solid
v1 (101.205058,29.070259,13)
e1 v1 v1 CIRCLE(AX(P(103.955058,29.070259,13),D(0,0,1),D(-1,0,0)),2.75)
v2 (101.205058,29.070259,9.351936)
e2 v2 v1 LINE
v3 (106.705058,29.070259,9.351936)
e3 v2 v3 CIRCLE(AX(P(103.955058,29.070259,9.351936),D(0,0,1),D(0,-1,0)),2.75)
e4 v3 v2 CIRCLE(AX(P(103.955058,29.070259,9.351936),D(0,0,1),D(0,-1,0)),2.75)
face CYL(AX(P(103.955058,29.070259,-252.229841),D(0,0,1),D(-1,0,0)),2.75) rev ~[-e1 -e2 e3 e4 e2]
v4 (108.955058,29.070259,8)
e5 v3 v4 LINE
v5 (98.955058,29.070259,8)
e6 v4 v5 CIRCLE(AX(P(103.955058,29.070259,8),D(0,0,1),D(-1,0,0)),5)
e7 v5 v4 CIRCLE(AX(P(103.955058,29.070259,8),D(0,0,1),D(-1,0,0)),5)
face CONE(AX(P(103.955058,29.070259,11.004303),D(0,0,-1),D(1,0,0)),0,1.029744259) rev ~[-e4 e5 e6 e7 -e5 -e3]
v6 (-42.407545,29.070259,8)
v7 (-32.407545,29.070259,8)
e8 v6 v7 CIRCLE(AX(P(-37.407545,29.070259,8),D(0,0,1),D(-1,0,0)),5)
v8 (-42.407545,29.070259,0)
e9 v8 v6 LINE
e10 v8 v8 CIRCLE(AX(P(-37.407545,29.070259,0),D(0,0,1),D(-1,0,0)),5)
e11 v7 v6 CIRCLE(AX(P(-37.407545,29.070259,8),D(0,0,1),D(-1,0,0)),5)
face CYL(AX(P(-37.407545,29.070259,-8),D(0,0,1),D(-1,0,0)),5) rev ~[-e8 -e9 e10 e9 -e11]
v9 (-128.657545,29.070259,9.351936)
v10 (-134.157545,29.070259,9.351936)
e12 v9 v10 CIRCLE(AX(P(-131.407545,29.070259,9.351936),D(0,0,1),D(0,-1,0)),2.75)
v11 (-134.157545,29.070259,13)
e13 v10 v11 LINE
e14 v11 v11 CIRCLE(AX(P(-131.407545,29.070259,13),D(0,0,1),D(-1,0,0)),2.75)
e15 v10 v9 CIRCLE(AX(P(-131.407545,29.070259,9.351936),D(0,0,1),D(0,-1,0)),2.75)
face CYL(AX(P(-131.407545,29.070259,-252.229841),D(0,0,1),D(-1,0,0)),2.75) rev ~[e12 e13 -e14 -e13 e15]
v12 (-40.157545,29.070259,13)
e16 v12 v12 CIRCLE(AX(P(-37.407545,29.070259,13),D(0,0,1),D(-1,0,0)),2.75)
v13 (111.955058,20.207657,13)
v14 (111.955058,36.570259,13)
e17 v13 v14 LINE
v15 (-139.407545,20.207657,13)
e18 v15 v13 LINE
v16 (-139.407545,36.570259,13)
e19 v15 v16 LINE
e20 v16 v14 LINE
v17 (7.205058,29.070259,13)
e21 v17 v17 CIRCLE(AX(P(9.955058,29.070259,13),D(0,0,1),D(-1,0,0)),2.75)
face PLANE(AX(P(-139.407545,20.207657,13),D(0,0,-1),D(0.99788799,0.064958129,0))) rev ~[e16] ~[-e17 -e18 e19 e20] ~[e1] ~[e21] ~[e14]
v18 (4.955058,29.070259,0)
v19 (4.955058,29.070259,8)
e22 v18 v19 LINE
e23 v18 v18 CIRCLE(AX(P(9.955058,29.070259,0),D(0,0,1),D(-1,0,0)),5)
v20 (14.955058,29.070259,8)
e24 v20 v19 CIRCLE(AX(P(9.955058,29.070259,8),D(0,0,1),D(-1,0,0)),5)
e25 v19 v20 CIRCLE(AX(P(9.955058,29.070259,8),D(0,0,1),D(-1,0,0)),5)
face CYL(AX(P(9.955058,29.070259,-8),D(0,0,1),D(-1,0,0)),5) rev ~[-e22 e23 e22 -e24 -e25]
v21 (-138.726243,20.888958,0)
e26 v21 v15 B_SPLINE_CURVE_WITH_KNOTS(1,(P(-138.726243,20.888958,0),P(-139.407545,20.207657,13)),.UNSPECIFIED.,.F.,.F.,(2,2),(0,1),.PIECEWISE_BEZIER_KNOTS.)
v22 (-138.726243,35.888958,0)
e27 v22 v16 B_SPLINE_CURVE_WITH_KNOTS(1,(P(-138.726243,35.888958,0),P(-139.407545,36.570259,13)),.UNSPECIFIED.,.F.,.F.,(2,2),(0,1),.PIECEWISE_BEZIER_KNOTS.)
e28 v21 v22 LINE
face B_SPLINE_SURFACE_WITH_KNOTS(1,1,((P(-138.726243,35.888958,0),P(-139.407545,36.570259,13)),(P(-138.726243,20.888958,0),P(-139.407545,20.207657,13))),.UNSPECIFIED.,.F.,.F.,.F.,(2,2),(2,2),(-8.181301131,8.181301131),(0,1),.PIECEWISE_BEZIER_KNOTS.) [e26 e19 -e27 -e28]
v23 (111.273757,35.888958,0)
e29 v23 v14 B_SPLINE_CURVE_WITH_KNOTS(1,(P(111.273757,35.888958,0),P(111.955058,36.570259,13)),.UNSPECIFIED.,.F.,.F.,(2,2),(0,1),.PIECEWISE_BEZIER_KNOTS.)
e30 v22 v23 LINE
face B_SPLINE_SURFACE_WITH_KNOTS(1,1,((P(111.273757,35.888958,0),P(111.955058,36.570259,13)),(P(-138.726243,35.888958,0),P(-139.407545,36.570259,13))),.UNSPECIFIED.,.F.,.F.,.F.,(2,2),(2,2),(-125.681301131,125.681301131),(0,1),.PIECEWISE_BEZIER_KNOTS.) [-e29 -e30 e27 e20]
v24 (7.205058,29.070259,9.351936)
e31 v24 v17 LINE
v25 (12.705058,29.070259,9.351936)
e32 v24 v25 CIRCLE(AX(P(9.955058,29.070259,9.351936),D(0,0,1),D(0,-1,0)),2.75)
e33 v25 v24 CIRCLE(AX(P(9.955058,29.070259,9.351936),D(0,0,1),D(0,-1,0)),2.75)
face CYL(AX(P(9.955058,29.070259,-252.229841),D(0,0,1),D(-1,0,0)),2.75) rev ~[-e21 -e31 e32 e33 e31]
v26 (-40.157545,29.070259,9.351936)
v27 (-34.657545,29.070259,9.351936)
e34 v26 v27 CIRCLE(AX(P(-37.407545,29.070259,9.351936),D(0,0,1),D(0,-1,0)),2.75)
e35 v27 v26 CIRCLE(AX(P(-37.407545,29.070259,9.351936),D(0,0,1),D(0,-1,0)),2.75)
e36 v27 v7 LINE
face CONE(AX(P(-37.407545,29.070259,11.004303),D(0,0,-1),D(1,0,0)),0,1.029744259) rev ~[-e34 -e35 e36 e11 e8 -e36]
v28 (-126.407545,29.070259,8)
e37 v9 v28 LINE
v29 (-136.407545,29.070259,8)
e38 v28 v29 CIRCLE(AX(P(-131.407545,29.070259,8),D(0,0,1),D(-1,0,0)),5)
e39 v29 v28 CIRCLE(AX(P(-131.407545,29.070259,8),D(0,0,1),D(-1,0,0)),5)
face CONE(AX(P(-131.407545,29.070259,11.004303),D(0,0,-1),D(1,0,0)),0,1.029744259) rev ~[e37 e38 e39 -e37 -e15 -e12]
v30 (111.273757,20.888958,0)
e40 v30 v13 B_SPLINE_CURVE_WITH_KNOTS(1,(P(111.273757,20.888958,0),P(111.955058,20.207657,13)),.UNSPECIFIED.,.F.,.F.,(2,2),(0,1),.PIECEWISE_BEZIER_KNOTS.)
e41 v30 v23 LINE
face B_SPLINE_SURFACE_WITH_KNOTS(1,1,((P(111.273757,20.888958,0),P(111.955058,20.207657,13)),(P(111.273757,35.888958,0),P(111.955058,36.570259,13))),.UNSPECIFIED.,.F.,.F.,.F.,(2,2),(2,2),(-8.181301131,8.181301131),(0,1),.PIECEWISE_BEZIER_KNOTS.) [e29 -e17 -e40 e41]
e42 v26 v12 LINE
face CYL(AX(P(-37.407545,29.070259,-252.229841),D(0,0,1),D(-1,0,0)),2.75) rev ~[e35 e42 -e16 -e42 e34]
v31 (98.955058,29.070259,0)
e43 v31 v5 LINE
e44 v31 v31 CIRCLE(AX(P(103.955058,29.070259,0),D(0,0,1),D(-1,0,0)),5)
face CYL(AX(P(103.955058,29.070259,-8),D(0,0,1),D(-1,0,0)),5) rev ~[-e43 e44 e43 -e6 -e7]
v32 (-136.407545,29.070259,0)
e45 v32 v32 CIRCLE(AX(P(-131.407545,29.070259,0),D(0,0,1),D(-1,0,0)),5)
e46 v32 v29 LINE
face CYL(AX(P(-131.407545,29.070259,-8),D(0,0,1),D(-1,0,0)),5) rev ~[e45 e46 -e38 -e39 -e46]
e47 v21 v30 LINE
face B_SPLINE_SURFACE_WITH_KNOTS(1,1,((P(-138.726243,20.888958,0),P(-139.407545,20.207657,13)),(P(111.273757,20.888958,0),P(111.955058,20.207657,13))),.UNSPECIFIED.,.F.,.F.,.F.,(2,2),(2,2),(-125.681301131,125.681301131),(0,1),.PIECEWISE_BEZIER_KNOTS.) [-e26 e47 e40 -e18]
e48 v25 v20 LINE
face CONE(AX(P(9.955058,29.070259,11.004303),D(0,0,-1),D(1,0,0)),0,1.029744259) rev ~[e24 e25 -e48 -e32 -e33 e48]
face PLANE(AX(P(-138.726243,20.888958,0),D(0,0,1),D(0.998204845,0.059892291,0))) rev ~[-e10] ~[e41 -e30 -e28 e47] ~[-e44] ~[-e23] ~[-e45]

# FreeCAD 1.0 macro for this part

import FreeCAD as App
import Part
import Sketcher
from FreeCAD import Vector
Q = App.Units.Quantity

doc = App.newDocument("Part")
body = doc.addObject("PartDesign::Body", "Body")

# Sketch on XY plane
sketch1 = body.newObject("Sketcher::SketchObject", "Sketch")
sketch1.AttachmentSupport = (doc.getObject("XY_Plane"), [""])
sketch1.MapMode = "FlatFace"
sketch1.addGeometry(Part.LineSegment(Vector(-139, 36, 0), Vector(-139, 21, 0)), False)
sketch1.addGeometry(Part.LineSegment(Vector(-139, 21, 0), Vector(111, 21, 0)), False)
sketch1.addGeometry(Part.LineSegment(Vector(111, 21, 0), Vector(111, 36, 0)), False)
sketch1.addGeometry(Part.LineSegment(Vector(111, 36, 0), Vector(-139, 36, 0)), False)
sketch1.addConstraint(Sketcher.Constraint("Coincident", 0, 2, 1, 1))
sketch1.addConstraint(Sketcher.Constraint("Coincident", 1, 2, 2, 1))
sketch1.addConstraint(Sketcher.Constraint("Coincident", 2, 2, 3, 1))
sketch1.addConstraint(Sketcher.Constraint("Coincident", 3, 2, 0, 1))
sketch1.addConstraint(Sketcher.Constraint("Vertical", 0))
sketch1.addConstraint(Sketcher.Constraint("Horizontal", 1))
sketch1.addConstraint(Sketcher.Constraint("Vertical", 2))
sketch1.addConstraint(Sketcher.Constraint("Horizontal", 3))
sketch1.addConstraint(Sketcher.Constraint("DistanceX", 1, 1, 1, 2, Q("250 mm")))
sketch1.addConstraint(Sketcher.Constraint("DistanceY", 0, 2, 0, 1, Q("15 mm")))
sketch1.addConstraint(Sketcher.Constraint("DistanceY", -1, 1, 0, 2, Q("20.888958 mm")))
sketch1.addConstraint(Sketcher.Constraint("DistanceX", 0, 2, -1, 1, Q("138.726243 mm")))
pad1 = body.newObject("PartDesign::Pad", "Pad")
pad1.Profile = sketch1
pad1.Length = 13
pad1.TaperAngle = 3

# Sketch on XY plane
sketch2 = body.newObject("Sketcher::SketchObject", "Sketch001")
sketch2.AttachmentSupport = (doc.getObject("XY_Plane"), [""])
sketch2.MapMode = "FlatFace"
sketch2.addGeometry(Part.Circle(Vector(-131.4, 29.1, 0), Vector(0, 0, 1), 2.8), False)
sketch2.addGeometry(Part.Circle(Vector(-37.4, 29.1, 0), Vector(0, 0, 1), 2.8), False)
sketch2.addGeometry(Part.Circle(Vector(10, 29.1, 0), Vector(0, 0, 1), 2.8), False)
sketch2.addGeometry(Part.Circle(Vector(104, 29.1, 0), Vector(0, 0, 1), 2.8), False)
sketch2.addConstraint(Sketcher.Constraint("Equal", 0, 1))
sketch2.addConstraint(Sketcher.Constraint("Equal", 1, 2))
sketch2.addConstraint(Sketcher.Constraint("Equal", 2, 3))
sketch2.addConstraint(Sketcher.Constraint("Horizontal", 0, 3, 1, 3))
sketch2.addConstraint(Sketcher.Constraint("Horizontal", 1, 3, 2, 3))
sketch2.addConstraint(Sketcher.Constraint("Horizontal", 2, 3, 3, 3))
sketch2.addConstraint(Sketcher.Constraint("Diameter", 0, Q("5.5 mm")))
sketch2.addConstraint(Sketcher.Constraint("DistanceX", 0, 3, 1, 3, Q("94 mm")))
sketch2.addConstraint(Sketcher.Constraint("DistanceX", 2, 3, 3, 3, Q("94 mm")))
sketch2.addConstraint(Sketcher.Constraint("DistanceY", -1, 1, 0, 3, Q("29.070259 mm")))
sketch2.addConstraint(Sketcher.Constraint("DistanceX", 0, 3, -1, 1, Q("131.407545 mm")))
sketch2.addConstraint(Sketcher.Constraint("DistanceX", -1, 1, 2, 3, Q("9.955058 mm")))
doc.recompute()
hole = body.newObject("PartDesign::Hole", "Hole")
hole.Profile = sketch2
hole.ThreadType = "None"
hole.Diameter = 5.5
hole.DepthType = "ThroughAll"
hole.Reversed = True

# Sketch on XY plane
sketch3 = body.newObject("Sketcher::SketchObject", "Sketch002")
sketch3.AttachmentSupport = (doc.getObject("XY_Plane"), [""])
sketch3.MapMode = "FlatFace"
sketch3.addGeometry(Part.Circle(Vector(-37, 29, 0), Vector(0, 0, 1), 5), False)
sketch3.addGeometry(Part.Circle(Vector(10, 29, 0), Vector(0, 0, 1), 5), False)
sketch3.addGeometry(Part.Circle(Vector(104, 29, 0), Vector(0, 0, 1), 5), False)
sketch3.addGeometry(Part.Circle(Vector(-131, 29, 0), Vector(0, 0, 1), 5), False)
sketch3.addConstraint(Sketcher.Constraint("Equal", 0, 1))
sketch3.addConstraint(Sketcher.Constraint("Equal", 1, 2))
sketch3.addConstraint(Sketcher.Constraint("Equal", 2, 3))
sketch3.addConstraint(Sketcher.Constraint("Horizontal", 0, 3, 1, 3))
sketch3.addConstraint(Sketcher.Constraint("Horizontal", 1, 3, 2, 3))
sketch3.addConstraint(Sketcher.Constraint("Horizontal", 2, 3, 3, 3))
sketch3.addConstraint(Sketcher.Constraint("Diameter", 0, Q("10 mm")))
sketch3.addConstraint(Sketcher.Constraint("DistanceX", 1, 3, 2, 3, Q("94 mm")))
sketch3.addConstraint(Sketcher.Constraint("DistanceX", 3, 3, 0, 3, Q("94 mm")))
sketch3.addConstraint(Sketcher.Constraint("DistanceY", -1, 1, 0, 3, Q("29.070259 mm")))
sketch3.addConstraint(Sketcher.Constraint("DistanceX", 0, 3, -1, 1, Q("37.407545 mm")))
sketch3.addConstraint(Sketcher.Constraint("DistanceX", -1, 1, 1, 3, Q("9.955058 mm")))
doc.recompute()
hole2 = body.newObject("PartDesign::Hole", "Hole001")
hole2.Profile = sketch3
hole2.ThreadType = "None"
hole2.Diameter = 10
hole2.DepthType = "Dimension"
hole2.Depth = 8
hole2.DrillPoint = "Angled"
hole2.DrillPointAngle = 118
hole2.Reversed = True

doc.recompute()
